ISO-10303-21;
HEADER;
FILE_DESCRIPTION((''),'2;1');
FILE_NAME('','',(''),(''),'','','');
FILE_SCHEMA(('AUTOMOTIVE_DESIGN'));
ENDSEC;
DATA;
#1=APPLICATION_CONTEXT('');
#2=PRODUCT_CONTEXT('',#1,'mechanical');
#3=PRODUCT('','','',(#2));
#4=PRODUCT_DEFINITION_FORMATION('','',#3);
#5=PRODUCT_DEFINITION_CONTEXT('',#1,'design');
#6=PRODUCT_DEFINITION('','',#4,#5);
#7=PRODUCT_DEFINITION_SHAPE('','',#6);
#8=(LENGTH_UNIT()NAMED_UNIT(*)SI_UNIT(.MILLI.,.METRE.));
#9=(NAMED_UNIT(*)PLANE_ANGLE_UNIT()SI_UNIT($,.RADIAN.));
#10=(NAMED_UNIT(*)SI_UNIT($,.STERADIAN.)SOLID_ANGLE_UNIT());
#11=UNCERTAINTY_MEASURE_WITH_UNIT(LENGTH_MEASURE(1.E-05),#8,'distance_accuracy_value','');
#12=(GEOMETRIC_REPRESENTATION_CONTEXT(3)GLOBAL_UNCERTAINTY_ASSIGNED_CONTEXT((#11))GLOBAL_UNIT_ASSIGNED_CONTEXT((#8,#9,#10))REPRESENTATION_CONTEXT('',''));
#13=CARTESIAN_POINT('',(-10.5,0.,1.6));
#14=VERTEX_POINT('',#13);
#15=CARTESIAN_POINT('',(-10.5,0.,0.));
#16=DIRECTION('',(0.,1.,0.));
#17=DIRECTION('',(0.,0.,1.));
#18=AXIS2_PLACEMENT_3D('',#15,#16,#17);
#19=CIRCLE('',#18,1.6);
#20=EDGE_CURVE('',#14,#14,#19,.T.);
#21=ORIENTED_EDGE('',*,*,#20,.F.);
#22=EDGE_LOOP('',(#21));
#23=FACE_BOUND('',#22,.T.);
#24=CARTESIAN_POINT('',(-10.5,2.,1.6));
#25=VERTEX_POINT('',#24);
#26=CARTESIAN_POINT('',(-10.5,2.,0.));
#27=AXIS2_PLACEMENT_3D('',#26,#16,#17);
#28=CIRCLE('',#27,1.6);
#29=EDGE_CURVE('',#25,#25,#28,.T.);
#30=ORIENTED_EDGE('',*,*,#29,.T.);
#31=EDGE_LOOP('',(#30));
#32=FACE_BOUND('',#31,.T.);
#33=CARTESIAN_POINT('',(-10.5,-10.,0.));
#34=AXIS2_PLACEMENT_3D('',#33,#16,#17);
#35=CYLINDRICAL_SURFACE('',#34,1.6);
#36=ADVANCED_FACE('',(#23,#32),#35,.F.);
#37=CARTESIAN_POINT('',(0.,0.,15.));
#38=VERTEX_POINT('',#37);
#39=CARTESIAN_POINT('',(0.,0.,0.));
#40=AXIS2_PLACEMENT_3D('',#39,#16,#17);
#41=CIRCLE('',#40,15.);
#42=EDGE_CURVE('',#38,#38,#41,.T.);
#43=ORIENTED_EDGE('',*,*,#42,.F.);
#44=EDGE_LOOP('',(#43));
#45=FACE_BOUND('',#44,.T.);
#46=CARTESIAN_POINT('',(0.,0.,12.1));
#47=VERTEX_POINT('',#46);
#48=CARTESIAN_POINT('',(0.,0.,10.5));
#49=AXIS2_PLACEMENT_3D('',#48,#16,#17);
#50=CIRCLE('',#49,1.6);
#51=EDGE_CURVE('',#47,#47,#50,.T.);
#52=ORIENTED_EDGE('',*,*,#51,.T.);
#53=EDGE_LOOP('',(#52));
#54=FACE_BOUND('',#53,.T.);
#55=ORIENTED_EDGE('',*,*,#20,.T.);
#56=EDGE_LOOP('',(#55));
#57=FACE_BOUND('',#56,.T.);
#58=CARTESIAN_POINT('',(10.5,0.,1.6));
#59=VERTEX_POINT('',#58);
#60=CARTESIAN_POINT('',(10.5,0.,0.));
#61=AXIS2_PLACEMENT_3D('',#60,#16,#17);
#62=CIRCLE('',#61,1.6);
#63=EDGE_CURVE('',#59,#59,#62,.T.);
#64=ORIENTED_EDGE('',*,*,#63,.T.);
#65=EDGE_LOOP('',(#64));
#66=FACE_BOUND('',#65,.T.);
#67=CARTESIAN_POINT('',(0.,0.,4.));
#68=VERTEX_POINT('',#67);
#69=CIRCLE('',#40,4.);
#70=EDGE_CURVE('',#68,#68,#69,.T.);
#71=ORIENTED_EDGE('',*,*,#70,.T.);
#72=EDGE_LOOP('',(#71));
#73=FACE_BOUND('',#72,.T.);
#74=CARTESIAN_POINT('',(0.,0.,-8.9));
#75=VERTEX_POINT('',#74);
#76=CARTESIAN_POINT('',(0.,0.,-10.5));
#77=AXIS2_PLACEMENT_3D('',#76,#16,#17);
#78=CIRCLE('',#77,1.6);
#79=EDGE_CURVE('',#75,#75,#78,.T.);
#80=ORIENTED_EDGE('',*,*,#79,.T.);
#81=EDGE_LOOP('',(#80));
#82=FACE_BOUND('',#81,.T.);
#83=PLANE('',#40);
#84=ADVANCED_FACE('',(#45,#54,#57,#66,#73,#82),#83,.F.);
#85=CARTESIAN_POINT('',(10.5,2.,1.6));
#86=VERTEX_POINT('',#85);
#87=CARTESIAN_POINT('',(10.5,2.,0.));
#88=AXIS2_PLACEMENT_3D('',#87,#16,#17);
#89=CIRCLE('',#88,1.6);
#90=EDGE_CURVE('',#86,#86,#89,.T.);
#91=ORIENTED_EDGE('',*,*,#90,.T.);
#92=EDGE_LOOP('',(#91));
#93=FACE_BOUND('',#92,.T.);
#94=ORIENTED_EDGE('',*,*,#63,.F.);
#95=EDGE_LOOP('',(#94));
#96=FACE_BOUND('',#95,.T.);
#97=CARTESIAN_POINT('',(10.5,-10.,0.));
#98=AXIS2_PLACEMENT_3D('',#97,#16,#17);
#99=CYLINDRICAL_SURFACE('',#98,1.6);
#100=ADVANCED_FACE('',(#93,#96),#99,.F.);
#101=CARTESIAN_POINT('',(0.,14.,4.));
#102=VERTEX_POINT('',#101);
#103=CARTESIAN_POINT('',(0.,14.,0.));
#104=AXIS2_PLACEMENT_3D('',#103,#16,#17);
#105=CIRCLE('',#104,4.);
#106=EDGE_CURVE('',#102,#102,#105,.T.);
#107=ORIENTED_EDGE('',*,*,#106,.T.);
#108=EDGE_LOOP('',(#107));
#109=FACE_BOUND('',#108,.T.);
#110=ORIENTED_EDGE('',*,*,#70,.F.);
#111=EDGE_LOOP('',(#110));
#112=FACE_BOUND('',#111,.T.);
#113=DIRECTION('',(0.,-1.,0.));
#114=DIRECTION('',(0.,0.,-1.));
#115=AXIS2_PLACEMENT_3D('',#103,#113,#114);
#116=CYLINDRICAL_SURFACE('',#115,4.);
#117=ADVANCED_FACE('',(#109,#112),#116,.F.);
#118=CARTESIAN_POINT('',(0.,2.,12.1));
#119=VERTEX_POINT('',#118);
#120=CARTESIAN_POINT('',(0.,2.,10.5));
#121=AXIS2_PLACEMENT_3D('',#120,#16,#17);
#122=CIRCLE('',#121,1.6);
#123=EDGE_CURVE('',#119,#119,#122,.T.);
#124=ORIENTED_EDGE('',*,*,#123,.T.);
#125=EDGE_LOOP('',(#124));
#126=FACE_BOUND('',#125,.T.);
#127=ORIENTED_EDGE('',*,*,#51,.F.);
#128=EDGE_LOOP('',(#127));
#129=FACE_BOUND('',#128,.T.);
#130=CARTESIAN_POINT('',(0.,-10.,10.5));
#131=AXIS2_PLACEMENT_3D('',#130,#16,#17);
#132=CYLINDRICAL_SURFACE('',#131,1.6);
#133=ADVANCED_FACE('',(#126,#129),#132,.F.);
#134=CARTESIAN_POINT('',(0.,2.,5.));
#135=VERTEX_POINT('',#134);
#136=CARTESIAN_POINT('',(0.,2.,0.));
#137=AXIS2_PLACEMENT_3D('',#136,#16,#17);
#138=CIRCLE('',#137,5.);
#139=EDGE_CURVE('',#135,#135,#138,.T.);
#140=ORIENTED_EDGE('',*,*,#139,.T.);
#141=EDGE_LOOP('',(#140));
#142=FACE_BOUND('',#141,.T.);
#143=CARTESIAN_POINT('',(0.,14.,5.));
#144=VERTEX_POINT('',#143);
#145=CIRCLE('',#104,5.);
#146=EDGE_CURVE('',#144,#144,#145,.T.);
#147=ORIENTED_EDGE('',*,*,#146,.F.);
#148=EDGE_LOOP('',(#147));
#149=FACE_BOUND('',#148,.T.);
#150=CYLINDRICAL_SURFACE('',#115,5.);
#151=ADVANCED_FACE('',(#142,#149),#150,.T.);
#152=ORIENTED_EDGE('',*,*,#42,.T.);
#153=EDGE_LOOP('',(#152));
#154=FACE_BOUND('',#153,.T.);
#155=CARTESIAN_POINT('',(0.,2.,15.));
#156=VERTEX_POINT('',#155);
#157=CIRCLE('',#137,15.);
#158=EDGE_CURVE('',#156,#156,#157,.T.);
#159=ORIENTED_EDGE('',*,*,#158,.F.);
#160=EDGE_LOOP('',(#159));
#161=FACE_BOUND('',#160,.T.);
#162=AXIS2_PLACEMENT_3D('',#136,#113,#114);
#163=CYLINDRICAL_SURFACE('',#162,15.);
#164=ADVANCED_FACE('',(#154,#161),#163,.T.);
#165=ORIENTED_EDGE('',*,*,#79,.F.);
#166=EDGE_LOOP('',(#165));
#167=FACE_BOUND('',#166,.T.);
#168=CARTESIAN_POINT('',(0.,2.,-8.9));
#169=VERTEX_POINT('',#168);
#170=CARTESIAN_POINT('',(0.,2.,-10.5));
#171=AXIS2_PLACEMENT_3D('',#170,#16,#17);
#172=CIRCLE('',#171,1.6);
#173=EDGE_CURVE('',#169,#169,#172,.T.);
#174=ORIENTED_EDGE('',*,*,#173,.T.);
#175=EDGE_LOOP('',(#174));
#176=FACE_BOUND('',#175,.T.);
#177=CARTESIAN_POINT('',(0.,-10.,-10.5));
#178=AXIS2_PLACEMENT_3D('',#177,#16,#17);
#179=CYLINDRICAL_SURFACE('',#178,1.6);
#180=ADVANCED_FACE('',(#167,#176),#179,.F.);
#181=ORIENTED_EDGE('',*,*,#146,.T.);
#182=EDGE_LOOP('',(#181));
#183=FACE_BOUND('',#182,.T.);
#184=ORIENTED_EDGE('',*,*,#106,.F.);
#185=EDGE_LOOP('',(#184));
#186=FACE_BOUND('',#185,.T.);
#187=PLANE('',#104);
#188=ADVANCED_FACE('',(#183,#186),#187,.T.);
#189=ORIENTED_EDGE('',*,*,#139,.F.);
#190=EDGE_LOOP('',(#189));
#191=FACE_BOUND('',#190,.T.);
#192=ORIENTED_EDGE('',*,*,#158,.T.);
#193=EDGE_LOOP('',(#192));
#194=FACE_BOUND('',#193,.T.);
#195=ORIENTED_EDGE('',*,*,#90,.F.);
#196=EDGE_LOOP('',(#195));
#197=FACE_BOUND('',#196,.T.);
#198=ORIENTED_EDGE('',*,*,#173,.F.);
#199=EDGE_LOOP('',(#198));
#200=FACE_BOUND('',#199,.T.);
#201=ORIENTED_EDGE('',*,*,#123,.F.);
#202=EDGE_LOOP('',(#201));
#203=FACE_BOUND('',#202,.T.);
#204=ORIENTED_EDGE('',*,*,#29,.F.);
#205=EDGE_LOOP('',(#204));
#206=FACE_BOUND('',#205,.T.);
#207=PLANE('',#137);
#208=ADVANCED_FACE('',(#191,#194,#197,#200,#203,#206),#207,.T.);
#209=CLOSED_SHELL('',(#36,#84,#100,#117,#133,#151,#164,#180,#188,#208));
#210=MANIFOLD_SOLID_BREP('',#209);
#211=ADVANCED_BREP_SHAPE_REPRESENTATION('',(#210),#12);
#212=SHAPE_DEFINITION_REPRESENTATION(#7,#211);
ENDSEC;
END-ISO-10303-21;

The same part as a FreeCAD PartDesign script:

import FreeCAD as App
import Part
import Sketcher
from FreeCAD import Vector
Q = App.Units.Quantity

doc = App.newDocument("Part")
body = doc.addObject("PartDesign::Body", "Body")

sketch1 = body.newObject("Sketcher::SketchObject", "Sketch")
sketch1.AttachmentSupport = (doc.getObject("XZ_Plane"), [""])
sketch1.MapMode = "FlatFace"
sketch1.addGeometry(Part.Circle(Vector(0, 0, 0), Vector(0, 0, 1), 15), False)
sketch1.addConstraint(Sketcher.Constraint("Coincident", 0, 3, -1, 1))
sketch1.addConstraint(Sketcher.Constraint("Diameter", 0, Q("30 mm")))
pad1 = body.newObject("PartDesign::Pad", "Pad")
pad1.Profile = sketch1
pad1.Length = 2
pad1.Reversed = True

sketch2 = body.newObject("Sketcher::SketchObject", "Sketch001")
sketch2.AttachmentSupport = (doc.getObject("XZ_Plane"), [""])
sketch2.MapMode = "FlatFace"
sketch2.AttachmentOffset = App.Placement(Vector(0, 0, -2), App.Rotation())
sketch2.addGeometry(Part.Circle(Vector(0, 0, 0), Vector(0, 0, 1), 5), False)
sketch2.addGeometry(Part.Circle(Vector(0, 0, 0), Vector(0, 0, 1), 4), False)
sketch2.addConstraint(Sketcher.Constraint("Coincident", 0, 3, -1, 1))
sketch2.addConstraint(Sketcher.Constraint("Coincident", 1, 3, -1, 1))
sketch2.addConstraint(Sketcher.Constraint("Diameter", 0, Q("10 mm")))
sketch2.addConstraint(Sketcher.Constraint("Diameter", 1, Q("8 mm")))
pad2 = body.newObject("PartDesign::Pad", "Pad001")
pad2.Profile = sketch2
pad2.Length = 12
pad2.Reversed = True

sketch3 = body.newObject("Sketcher::SketchObject", "Sketch002")
sketch3.AttachmentSupport = (doc.getObject("XZ_Plane"), [""])
sketch3.MapMode = "FlatFace"
sketch3.AttachmentOffset = App.Placement(Vector(0, 0, 10), App.Rotation())
sketch3.addGeometry(Part.Circle(Vector(0, 0, 0), Vector(0, 0, 1), 4), False)
sketch3.addConstraint(Sketcher.Constraint("Coincident", 0, 3, -1, 1))
sketch3.addConstraint(Sketcher.Constraint("Diameter", 0, Q("8 mm")))
pocket1 = body.newObject("PartDesign::Pocket", "Pocket")
pocket1.Profile = sketch3
pocket1.Length = 12

sketch4 = body.newObject("Sketcher::SketchObject", "Sketch003")
sketch4.AttachmentSupport = (doc.getObject("XZ_Plane"), [""])
sketch4.MapMode = "FlatFace"
sketch4.AttachmentOffset = App.Placement(Vector(0, 0, -2), App.Rotation())
sketch4.addGeometry(Part.Circle(Vector(0, -10.5, 0), Vector(0, 0, 1), 1.6), False)
sketch4.addGeometry(Part.Circle(Vector(10.5, 0, 0), Vector(0, 0, 1), 1.6), False)
sketch4.addGeometry(Part.Circle(Vector(0, 10.5, 0), Vector(0, 0, 1), 1.6), False)
sketch4.addGeometry(Part.Circle(Vector(-10.5, 0, 0), Vector(0, 0, 1), 1.6), False)
sketch4.addConstraint(Sketcher.Constraint("Equal", 0, 1))
sketch4.addConstraint(Sketcher.Constraint("Equal", 1, 2))
sketch4.addConstraint(Sketcher.Constraint("Equal", 2, 3))
sketch4.addConstraint(Sketcher.Constraint("Symmetric", 0, 3, 2, 3, -1, 1))
sketch4.addConstraint(Sketcher.Constraint("Symmetric", 1, 3, 3, 3, -1, 1))
sketch4.addConstraint(Sketcher.Constraint("PointOnObject", 0, 3, -2))
sketch4.addConstraint(Sketcher.Constraint("PointOnObject", 1, 3, -1))
sketch4.addConstraint(Sketcher.Constraint("Diameter", 0, Q("3.2 mm")))
sketch4.addConstraint(Sketcher.Constraint("DistanceY", 0, 3, 2, 3, Q("21 mm")))
sketch4.addConstraint(Sketcher.Constraint("DistanceX", 3, 3, 1, 3, Q("21 mm")))
pocket2 = body.newObject("PartDesign::Pocket", "Pocket001")
pocket2.Profile = sketch4
pocket2.Length = 12
pocket2.Reversed = True

doc.recompute()
